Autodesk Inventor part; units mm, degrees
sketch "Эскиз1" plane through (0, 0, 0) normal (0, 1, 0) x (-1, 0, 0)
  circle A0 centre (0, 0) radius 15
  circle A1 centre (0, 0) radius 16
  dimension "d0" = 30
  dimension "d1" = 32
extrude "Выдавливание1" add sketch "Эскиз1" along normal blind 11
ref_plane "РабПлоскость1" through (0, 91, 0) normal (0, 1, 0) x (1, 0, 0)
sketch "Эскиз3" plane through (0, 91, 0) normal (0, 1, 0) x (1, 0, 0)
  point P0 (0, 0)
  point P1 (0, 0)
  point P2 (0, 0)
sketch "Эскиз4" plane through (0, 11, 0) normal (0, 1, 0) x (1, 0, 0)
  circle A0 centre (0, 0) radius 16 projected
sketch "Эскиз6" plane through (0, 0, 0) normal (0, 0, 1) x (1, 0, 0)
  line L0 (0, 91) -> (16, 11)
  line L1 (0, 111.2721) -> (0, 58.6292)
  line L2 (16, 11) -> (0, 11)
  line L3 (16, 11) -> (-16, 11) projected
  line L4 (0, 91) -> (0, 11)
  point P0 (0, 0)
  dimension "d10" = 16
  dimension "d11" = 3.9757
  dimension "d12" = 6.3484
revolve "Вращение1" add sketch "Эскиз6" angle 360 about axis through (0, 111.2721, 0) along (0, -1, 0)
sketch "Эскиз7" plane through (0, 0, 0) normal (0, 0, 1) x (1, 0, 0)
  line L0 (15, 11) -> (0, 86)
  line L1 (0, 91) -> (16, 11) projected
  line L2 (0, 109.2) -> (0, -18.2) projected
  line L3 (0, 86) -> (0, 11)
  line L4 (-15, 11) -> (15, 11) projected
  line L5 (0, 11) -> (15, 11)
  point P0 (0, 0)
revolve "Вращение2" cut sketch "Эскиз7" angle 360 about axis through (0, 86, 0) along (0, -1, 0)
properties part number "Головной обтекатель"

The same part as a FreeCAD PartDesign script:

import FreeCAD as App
import Part
import Sketcher

V = App.Vector


def add_polygon(sketch, points):
    """Adds a closed chain of lines whose ends are joined by coincident constraints."""
    first, n = sketch.GeometryCount, len(points)
    for a, b in zip(points, points[1:] + points[:1]):
        sketch.addGeometry(Part.LineSegment(App.Vector(*a, 0), App.Vector(*b, 0)), False)
    for i in range(n):
        sketch.addConstraint(Sketcher.Constraint("Coincident", first + i, 2, first + (i + 1) % n, 1))

doc = App.newDocument("Part")
body = doc.addObject("PartDesign::Body", "Body")

# Sketch on XZ plane
sketch1 = body.newObject("Sketcher::SketchObject", "Sketch")
sketch1.AttachmentSupport = (doc.getObject("XZ_Plane"), [""])
sketch1.MapMode = "FlatFace"
sketch1.addGeometry([
    Part.Circle(V(0, 0, 0), V(0, 0, 1), 16),
    Part.Circle(V(0, 0, 0), V(0, 0, 1), 15),
], False)
sketch1.addConstraint([
    Sketcher.Constraint("Coincident", 0, 3, -1, 1),
    Sketcher.Constraint("Coincident", 1, 3, -1, 1),
    Sketcher.Constraint("Diameter", 0, 32.0),
    Sketcher.Constraint("Diameter", 1, 30.0),
])
pad1 = body.newObject("PartDesign::Pad", "Pad")
pad1.Profile = sketch1
pad1.Length = 11
pad1.Reversed = True

# Sketch on XY plane
sketch2 = body.newObject("Sketcher::SketchObject", "Sketch001")
sketch2.AttachmentSupport = (doc.getObject("XY_Plane"), [""])
sketch2.MapMode = "FlatFace"
add_polygon(sketch2, [(16, 11), (0, 91), (0, 11)])  # lines 0-2
sketch2.addConstraint([
    Sketcher.Constraint("Vertical", 1),
    Sketcher.Constraint("Horizontal", 2),
    Sketcher.Constraint("PointOnObject", 0, 2, -2),
    Sketcher.Constraint("DistanceX", 2, 1, 2, 2, 16.0),
    Sketcher.Constraint("DistanceY", 1, 2, 1, 1, 80.0),
    Sketcher.Constraint("DistanceY", -1, 1, 0, 2, 91.0),
])
revolution = body.newObject("PartDesign::Revolution", "Revolution")
revolution.Profile = sketch2
revolution.ReferenceAxis = (sketch2, ["V_Axis"])
revolution.Angle = 360

# Sketch on XY plane
sketch3 = body.newObject("Sketcher::SketchObject", "Sketch002")
sketch3.AttachmentSupport = (doc.getObject("XY_Plane"), [""])
sketch3.MapMode = "FlatFace"
add_polygon(sketch3, [(0, 11), (15, 11), (0, 86)])  # lines 0-2
sketch3.addConstraint([
    Sketcher.Constraint("Horizontal", 0),
    Sketcher.Constraint("Vertical", 2),
    Sketcher.Constraint("PointOnObject", 1, 2, -2),
    Sketcher.Constraint("DistanceX", 0, 1, 0, 2, 15.0),
    Sketcher.Constraint("DistanceY", 2, 2, 2, 1, 75.0),
    Sketcher.Constraint("DistanceY", -1, 1, 0, 2, 11.0),
])
groove = body.newObject("PartDesign::Groove", "Groove")
groove.Profile = sketch3
groove.ReferenceAxis = (sketch3, ["V_Axis"])
groove.Angle = 360

doc.recompute()
